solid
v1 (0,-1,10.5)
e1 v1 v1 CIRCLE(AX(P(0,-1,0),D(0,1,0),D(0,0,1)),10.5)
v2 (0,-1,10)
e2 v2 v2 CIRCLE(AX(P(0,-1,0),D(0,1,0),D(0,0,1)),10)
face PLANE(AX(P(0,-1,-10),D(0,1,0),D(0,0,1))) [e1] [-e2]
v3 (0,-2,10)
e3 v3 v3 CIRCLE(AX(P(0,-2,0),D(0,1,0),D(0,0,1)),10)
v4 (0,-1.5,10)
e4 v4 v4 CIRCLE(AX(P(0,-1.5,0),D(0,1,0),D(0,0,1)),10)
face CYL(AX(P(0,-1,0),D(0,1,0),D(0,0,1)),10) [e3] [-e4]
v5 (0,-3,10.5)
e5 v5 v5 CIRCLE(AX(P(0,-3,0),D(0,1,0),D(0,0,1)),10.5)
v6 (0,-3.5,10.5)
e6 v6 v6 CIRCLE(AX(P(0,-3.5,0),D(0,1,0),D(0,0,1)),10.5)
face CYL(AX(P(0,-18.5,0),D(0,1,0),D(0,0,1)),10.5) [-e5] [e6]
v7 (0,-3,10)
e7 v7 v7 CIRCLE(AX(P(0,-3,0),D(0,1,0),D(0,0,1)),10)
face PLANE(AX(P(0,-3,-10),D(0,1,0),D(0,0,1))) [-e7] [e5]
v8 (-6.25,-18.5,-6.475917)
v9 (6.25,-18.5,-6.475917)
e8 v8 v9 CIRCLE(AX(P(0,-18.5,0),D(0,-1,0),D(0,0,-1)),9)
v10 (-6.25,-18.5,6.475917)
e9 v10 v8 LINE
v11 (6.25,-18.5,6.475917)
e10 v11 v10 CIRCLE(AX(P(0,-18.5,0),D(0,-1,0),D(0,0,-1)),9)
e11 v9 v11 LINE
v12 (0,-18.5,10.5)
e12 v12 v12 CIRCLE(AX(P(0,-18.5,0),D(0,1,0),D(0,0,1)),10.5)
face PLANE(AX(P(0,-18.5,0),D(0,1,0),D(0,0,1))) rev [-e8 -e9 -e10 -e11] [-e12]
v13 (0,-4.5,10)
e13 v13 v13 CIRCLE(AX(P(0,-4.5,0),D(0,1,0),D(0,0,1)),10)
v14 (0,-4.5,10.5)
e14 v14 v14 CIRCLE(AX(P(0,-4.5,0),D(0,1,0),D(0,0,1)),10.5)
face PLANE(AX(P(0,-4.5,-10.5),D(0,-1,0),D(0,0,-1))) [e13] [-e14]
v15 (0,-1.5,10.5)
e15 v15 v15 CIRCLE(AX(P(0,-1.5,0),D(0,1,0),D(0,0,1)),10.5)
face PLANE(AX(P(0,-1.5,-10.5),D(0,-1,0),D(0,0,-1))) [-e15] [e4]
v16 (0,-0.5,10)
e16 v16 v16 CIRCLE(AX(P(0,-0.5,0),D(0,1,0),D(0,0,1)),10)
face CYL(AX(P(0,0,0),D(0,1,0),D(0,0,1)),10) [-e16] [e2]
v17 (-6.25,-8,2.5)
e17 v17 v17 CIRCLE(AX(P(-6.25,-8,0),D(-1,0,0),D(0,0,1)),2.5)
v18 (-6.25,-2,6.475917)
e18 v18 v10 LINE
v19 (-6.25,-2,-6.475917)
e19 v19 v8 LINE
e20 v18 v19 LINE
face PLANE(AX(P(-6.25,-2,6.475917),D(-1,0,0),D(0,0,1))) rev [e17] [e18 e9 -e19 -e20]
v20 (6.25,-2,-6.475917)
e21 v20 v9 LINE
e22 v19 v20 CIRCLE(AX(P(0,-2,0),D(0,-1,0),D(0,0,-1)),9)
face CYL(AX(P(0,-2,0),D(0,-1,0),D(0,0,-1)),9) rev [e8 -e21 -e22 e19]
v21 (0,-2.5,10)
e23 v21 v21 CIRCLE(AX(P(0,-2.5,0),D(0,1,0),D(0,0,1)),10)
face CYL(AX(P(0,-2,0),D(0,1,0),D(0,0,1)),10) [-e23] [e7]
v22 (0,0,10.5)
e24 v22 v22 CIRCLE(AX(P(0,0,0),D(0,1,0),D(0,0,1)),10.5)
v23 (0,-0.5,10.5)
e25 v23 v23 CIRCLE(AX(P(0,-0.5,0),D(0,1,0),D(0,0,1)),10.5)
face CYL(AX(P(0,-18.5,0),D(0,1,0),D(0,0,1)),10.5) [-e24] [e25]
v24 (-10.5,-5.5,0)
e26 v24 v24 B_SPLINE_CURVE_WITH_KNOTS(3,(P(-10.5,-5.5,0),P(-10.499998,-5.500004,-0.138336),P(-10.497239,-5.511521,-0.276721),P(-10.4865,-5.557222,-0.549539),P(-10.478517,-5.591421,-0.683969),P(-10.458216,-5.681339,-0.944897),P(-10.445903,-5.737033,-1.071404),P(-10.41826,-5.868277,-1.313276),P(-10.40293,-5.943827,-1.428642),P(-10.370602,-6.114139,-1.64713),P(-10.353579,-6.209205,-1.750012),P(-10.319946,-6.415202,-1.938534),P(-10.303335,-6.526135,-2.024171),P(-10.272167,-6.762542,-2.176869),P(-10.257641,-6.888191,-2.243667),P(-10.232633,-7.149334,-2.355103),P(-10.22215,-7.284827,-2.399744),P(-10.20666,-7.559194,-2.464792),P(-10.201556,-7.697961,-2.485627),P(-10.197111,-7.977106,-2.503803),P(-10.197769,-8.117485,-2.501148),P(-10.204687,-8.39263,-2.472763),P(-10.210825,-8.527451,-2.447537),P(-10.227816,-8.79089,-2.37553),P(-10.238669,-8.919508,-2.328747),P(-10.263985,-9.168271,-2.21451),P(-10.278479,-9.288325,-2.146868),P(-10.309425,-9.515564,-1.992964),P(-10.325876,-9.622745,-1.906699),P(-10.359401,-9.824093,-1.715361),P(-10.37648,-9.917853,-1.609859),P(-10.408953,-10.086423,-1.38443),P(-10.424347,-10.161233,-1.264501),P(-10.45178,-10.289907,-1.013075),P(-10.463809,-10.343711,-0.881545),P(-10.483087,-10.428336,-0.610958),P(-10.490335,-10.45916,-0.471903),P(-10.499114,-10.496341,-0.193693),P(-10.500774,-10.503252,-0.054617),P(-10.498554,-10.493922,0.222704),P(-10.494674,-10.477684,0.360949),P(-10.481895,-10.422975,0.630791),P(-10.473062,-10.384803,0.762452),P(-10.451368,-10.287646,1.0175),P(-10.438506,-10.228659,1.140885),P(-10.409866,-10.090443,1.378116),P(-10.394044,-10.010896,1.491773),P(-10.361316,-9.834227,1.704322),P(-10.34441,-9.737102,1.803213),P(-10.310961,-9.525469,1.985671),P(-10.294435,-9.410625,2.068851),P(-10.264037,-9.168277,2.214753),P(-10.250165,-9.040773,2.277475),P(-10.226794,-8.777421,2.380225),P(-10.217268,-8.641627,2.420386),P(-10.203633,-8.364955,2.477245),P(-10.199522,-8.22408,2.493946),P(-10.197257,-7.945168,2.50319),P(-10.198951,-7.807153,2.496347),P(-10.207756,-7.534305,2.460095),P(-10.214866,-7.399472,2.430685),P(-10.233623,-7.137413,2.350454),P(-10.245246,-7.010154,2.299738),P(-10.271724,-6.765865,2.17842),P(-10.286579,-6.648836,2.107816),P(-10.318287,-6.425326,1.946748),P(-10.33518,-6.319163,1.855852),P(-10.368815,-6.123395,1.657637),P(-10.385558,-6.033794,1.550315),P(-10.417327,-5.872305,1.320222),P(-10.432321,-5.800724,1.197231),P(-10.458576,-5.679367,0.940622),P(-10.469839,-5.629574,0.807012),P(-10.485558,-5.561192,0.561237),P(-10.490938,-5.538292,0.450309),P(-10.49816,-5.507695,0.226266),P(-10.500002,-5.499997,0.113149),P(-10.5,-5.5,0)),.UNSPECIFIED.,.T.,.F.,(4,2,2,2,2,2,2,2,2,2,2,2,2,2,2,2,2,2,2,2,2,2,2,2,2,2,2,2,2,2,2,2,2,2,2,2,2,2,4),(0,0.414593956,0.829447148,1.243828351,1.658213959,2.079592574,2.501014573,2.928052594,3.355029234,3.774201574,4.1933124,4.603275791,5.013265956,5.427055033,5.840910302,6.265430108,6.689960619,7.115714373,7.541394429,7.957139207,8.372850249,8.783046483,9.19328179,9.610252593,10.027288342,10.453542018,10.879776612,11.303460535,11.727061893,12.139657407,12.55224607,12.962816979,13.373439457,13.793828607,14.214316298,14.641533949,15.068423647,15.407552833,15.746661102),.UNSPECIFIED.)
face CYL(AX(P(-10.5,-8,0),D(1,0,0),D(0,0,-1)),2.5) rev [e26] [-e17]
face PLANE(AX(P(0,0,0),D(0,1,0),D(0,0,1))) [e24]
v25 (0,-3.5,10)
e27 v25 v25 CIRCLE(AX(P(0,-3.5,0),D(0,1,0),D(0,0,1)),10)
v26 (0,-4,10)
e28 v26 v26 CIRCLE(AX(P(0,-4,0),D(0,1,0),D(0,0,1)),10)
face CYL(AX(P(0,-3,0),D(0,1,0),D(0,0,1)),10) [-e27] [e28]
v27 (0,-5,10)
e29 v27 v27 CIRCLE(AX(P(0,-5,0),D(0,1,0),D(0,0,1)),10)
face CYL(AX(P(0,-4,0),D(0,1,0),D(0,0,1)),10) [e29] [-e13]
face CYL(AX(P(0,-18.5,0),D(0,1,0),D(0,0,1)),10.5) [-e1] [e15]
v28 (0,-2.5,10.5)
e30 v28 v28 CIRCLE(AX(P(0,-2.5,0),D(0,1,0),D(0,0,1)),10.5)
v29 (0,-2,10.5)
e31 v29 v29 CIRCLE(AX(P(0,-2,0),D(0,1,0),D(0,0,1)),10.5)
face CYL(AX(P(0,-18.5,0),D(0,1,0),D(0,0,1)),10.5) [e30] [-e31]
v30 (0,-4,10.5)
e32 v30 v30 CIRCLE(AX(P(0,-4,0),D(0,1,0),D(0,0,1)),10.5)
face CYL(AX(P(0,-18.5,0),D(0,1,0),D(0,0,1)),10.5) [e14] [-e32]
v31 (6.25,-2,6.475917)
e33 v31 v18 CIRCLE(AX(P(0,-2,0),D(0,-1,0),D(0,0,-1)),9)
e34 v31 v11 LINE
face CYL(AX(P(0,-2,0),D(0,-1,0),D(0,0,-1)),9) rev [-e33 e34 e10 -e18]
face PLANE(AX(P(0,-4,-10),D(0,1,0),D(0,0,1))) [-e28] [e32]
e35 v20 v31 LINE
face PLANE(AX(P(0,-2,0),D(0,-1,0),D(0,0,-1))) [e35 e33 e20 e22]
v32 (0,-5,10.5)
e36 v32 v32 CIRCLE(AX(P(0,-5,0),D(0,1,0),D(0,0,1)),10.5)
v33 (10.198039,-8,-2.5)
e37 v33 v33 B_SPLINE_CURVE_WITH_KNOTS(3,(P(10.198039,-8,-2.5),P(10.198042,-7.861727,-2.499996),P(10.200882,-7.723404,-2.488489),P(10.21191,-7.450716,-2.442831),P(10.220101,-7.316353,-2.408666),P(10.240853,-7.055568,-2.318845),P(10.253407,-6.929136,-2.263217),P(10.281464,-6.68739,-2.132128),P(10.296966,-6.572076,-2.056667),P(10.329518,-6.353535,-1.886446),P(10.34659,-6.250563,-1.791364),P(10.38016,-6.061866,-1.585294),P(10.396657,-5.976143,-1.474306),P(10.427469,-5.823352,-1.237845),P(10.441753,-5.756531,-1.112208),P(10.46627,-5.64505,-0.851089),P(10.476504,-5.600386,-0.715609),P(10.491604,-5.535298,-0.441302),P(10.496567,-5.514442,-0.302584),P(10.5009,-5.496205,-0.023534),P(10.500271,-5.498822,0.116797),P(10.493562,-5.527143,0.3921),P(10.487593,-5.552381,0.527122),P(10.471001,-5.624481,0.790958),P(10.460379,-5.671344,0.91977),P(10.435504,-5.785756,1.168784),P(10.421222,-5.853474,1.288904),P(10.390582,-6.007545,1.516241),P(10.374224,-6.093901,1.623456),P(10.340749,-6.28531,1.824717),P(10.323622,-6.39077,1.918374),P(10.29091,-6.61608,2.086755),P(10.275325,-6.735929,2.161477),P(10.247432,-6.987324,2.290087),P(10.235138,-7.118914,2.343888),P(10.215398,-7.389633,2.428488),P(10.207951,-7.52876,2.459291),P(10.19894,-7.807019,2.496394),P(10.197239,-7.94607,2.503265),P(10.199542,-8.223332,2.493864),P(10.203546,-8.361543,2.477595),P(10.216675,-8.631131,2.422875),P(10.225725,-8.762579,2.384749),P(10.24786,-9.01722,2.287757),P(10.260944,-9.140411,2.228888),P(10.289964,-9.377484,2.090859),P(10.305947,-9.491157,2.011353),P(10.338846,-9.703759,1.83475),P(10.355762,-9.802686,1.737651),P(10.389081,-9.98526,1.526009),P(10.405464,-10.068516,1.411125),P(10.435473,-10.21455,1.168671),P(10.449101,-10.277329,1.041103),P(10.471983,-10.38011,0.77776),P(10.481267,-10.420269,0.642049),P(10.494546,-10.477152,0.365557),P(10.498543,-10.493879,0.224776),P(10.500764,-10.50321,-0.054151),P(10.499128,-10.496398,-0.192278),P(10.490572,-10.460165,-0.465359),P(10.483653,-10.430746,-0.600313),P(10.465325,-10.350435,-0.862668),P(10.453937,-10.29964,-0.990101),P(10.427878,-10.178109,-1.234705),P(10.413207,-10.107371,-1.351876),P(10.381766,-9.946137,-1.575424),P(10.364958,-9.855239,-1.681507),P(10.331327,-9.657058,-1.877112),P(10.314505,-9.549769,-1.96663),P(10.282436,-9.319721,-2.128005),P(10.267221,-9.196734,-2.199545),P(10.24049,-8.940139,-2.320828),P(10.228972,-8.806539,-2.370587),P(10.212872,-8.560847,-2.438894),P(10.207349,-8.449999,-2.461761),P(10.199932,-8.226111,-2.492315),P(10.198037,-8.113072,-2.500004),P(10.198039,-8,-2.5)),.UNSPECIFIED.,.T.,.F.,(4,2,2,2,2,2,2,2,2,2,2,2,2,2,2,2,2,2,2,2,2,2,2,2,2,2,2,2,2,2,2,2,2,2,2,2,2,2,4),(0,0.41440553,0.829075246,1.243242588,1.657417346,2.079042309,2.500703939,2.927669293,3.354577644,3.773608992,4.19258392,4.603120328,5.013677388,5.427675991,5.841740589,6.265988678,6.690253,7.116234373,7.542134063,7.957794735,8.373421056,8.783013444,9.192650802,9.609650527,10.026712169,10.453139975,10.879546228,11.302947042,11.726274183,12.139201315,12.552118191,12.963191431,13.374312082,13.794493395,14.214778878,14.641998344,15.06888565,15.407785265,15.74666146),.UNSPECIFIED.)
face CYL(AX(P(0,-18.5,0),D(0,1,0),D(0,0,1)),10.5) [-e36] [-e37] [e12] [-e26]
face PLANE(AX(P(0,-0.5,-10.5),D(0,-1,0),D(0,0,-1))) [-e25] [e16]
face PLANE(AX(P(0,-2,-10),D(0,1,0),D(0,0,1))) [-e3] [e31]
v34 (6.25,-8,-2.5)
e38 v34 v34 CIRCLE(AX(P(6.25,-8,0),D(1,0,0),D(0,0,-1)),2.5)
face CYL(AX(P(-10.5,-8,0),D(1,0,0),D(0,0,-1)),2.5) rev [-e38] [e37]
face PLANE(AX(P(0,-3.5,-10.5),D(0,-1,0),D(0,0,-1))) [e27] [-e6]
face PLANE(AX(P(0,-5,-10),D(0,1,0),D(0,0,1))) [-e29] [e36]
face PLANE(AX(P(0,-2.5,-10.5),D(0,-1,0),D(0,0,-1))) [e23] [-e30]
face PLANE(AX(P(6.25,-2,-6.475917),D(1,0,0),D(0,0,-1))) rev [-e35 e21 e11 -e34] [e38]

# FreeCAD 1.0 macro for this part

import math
import FreeCAD as App
import Part
import Sketcher

V = App.Vector
Q = App.Units.Quantity

doc = App.newDocument("Part")
body = doc.addObject("PartDesign::Body", "Body")

# Sketch on XZ plane
sketch1 = doc.addObject("Sketcher::SketchObject", "Sketch")
body.addObject(sketch1)
sketch1.AttachmentSupport = (doc.XZ_Plane, [""])
sketch1.MapMode = "FlatFace"
sketch1.addGeometry(Part.Circle(V(0, 0, 0), V(0, 0, 1), 10.5), False)
sketch1.addConstraint([
    Sketcher.Constraint("Coincident", 0, 3, -1, 1),
    Sketcher.Constraint("Diameter", 0, Q("21 mm")),
])
pad1 = doc.addObject("PartDesign::Pad", "Pad")
body.addObject(pad1)
pad1.Profile = sketch1
pad1.Length = 18.5

# Sketch on XZ plane
sketch2 = doc.addObject("Sketcher::SketchObject", "Sketch001")
body.addObject(sketch2)
sketch2.AttachmentSupport = (doc.XZ_Plane, [""])
sketch2.MapMode = "FlatFace"
sketch2.AttachmentOffset = App.Placement(V(0, 0, 18.5), App.Rotation())
sketch2.addGeometry([
    Part.LineSegment(V(-6.25, 6.475917, 0), V(-6.25, -6.475917, 0)),
    Part.ArcOfCircle(Part.Circle(V(0, 0, 0), V(0, 0, 1), 9), math.radians(-133.982963), math.radians(-46.017037)),
    Part.LineSegment(V(6.25, -6.475917, 0), V(6.25, 6.475917, 0)),
    Part.ArcOfCircle(Part.Circle(V(0, 0, 0), V(0, 0, 1), 9), math.radians(46.017037), math.radians(133.982963)),
], False)
sketch2.addConstraint([
    Sketcher.Constraint("Coincident", 0, 2, 1, 1),
    Sketcher.Constraint("Coincident", 1, 2, 2, 1),
    Sketcher.Constraint("Coincident", 2, 2, 3, 1),
    Sketcher.Constraint("Coincident", 3, 2, 0, 1),
    Sketcher.Constraint("Vertical", 0),
    Sketcher.Constraint("Vertical", 2),
    Sketcher.Constraint("Coincident", 1, 3, -1, 1),
    Sketcher.Constraint("Coincident", 3, 3, -1, 1),
    Sketcher.Constraint("Equal", 1, 3),
    Sketcher.Constraint("Horizontal", 0, 2, 1, 2),
    Sketcher.Constraint("Radius", 1, Q("9 mm")),
    Sketcher.Constraint("DistanceX", 0, 2, 1, 2, Q("12.5 mm")),
])
pocket1 = doc.addObject("PartDesign::Pocket", "Pocket")
body.addObject(pocket1)
pocket1.Profile = sketch2
pocket1.Length = 16.5

# Sketch on YZ plane
sketch3 = doc.addObject("Sketcher::SketchObject", "Sketch002")
body.addObject(sketch3)
sketch3.AttachmentSupport = (doc.YZ_Plane, [""])
sketch3.MapMode = "FlatFace"
sketch3.addGeometry(Part.Circle(V(-8, 0, 0), V(0, 0, 1), 2.5), False)
sketch3.addConstraint([
    Sketcher.Constraint("PointOnObject", 0, 3, -1),
    Sketcher.Constraint("Diameter", 0, Q("5 mm")),
    Sketcher.Constraint("DistanceX", 0, 3, -1, 1, Q("8 mm")),
])
pocket2 = doc.addObject("PartDesign::Pocket", "Pocket001")
body.addObject(pocket2)
pocket2.Profile = sketch3
pocket2.Type = "ThroughAll"
pocket2.Midplane = True

# Sketch on YZ plane
sketch4 = doc.addObject("Sketcher::SketchObject", "Sketch003")
body.addObject(sketch4)
sketch4.AttachmentSupport = (doc.YZ_Plane, [""])
sketch4.MapMode = "FlatFace"
sketch4.addGeometry([
    Part.LineSegment(V(-0.5, -10, 0), V(-1, -10, 0)),
    Part.LineSegment(V(-1, -10, 0), V(-1, -10.5, 0)),
    Part.LineSegment(V(-1, -10.5, 0), V(-0.5, -10.5, 0)),
    Part.LineSegment(V(-0.5, -10.5, 0), V(-0.5, -10, 0)),
], False)
sketch4.addConstraint([
    Sketcher.Constraint("Coincident", 0, 2, 1, 1),
    Sketcher.Constraint("Coincident", 1, 2, 2, 1),
    Sketcher.Constraint("Coincident", 2, 2, 3, 1),
    Sketcher.Constraint("Coincident", 3, 2, 0, 1),
    Sketcher.Constraint("Horizontal", 0),
    Sketcher.Constraint("Vertical", 1),
    Sketcher.Constraint("Horizontal", 2),
    Sketcher.Constraint("Vertical", 3),
    Sketcher.Constraint("Equal", 2, 1),
    Sketcher.Constraint("DistanceX", 0, 2, 0, 1, Q("0.5 mm")),
    Sketcher.Constraint("DistanceX", 0, 2, -1, 1, Q("1 mm")),
    Sketcher.Constraint("DistanceY", 0, 2, -1, 1, Q("10 mm")),
])
groove = doc.addObject("PartDesign::Groove", "Groove")
body.addObject(groove)
groove.Profile = sketch4
groove.ReferenceAxis = (sketch4, ["H_Axis"])
groove.Angle = 360
doc.recompute()

linearpattern = doc.addObject("PartDesign::LinearPattern", "LinearPattern")
body.addObject(linearpattern)
linearpattern.Originals = [groove]
linearpattern.Direction = (doc.Y_Axis, [""])
linearpattern.Mode = "offset"
linearpattern.Offset = 1
linearpattern.Occurrences = 5
linearpattern.Reversed = True
body.Tip = linearpattern

doc.recompute()
